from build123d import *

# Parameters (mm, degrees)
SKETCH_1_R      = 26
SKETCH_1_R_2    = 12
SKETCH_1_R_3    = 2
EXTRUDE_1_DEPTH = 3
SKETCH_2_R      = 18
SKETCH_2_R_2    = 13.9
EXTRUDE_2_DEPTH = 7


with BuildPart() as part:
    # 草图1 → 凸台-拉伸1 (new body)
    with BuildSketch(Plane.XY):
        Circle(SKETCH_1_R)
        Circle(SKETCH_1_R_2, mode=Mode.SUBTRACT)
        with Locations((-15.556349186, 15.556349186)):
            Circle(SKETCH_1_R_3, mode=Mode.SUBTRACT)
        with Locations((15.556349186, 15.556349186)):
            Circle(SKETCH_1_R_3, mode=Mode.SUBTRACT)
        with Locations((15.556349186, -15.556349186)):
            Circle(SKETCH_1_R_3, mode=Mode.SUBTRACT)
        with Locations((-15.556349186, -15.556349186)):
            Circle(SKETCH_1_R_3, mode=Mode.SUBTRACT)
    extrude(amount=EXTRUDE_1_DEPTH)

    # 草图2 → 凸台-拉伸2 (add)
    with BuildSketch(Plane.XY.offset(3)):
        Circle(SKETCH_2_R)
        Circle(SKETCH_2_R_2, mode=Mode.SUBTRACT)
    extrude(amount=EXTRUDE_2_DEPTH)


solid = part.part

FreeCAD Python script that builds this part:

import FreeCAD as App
import Part
import Sketcher
from FreeCAD import Vector
Q = App.Units.Quantity

doc = App.newDocument("Part")
body = doc.addObject("PartDesign::Body", "Body")

sketch1 = body.newObject("Sketcher::SketchObject", "Sketch")
sketch1.AttachmentSupport = (doc.getObject("XY_Plane"), [""])
sketch1.MapMode = "FlatFace"
sketch1.addGeometry(Part.Circle(Vector(0, 0, 0), Vector(0, 0, 1), 26), False)
sketch1.addGeometry(Part.Circle(Vector(-15.6, -15.6, 0), Vector(0, 0, 1), 2), False)
sketch1.addGeometry(Part.Circle(Vector(15.6, -15.6, 0), Vector(0, 0, 1), 2), False)
sketch1.addGeometry(Part.Circle(Vector(-15.6, 15.6, 0), Vector(0, 0, 1), 2), False)
sketch1.addGeometry(Part.Circle(Vector(0, 0, 0), Vector(0, 0, 1), 12), False)
sketch1.addGeometry(Part.Circle(Vector(15.6, 15.6, 0), Vector(0, 0, 1), 2), False)
sketch1.addConstraint(Sketcher.Constraint("Coincident", 0, 3, -1, 1))
sketch1.addConstraint(Sketcher.Constraint("Coincident", 4, 3, -1, 1))
sketch1.addConstraint(Sketcher.Constraint("Equal", 1, 2))
sketch1.addConstraint(Sketcher.Constraint("Equal", 2, 3))
sketch1.addConstraint(Sketcher.Constraint("Equal", 3, 5))
sketch1.addConstraint(Sketcher.Constraint("Symmetric", 2, 3, 3, 3, -1, 1))
sketch1.addConstraint(Sketcher.Constraint("Symmetric", 1, 3, 5, 3, -1, 1))
sketch1.addConstraint(Sketcher.Constraint("Symmetric", 1, 3, 2, 3, -2))
sketch1.addConstraint(Sketcher.Constraint("Diameter", 0, Q("52 mm")))
sketch1.addConstraint(Sketcher.Constraint("Diameter", 1, Q("4 mm")))
sketch1.addConstraint(Sketcher.Constraint("Diameter", 4, Q("24 mm")))
sketch1.addConstraint(Sketcher.Constraint("DistanceX", 1, 3, 2, 3, Q("31.112698 mm")))
sketch1.addConstraint(Sketcher.Constraint("DistanceY", 1, 3, 3, 3, Q("31.112698 mm")))
pad1 = body.newObject("PartDesign::Pad", "Pad")
pad1.Profile = sketch1
pad1.Length = 3

sketch2 = body.newObject("Sketcher::SketchObject", "Sketch001")
sketch2.AttachmentSupport = (doc.getObject("XY_Plane"), [""])
sketch2.MapMode = "FlatFace"
sketch2.AttachmentOffset = App.Placement(Vector(0, 0, 3), App.Rotation())
sketch2.addGeometry(Part.Circle(Vector(0, 0, 0), Vector(0, 0, 1), 18), False)
sketch2.addGeometry(Part.Circle(Vector(0, 0, 0), Vector(0, 0, 1), 14), False)
sketch2.addConstraint(Sketcher.Constraint("Coincident", 0, 3, -1, 1))
sketch2.addConstraint(Sketcher.Constraint("Coincident", 1, 3, -1, 1))
sketch2.addConstraint(Sketcher.Constraint("Diameter", 0, Q("36 mm")))
sketch2.addConstraint(Sketcher.Constraint("Diameter", 1, Q("27.8 mm")))
pad2 = body.newObject("PartDesign::Pad", "Pad001")
pad2.Profile = sketch2
pad2.Length = 7

doc.recompute()
